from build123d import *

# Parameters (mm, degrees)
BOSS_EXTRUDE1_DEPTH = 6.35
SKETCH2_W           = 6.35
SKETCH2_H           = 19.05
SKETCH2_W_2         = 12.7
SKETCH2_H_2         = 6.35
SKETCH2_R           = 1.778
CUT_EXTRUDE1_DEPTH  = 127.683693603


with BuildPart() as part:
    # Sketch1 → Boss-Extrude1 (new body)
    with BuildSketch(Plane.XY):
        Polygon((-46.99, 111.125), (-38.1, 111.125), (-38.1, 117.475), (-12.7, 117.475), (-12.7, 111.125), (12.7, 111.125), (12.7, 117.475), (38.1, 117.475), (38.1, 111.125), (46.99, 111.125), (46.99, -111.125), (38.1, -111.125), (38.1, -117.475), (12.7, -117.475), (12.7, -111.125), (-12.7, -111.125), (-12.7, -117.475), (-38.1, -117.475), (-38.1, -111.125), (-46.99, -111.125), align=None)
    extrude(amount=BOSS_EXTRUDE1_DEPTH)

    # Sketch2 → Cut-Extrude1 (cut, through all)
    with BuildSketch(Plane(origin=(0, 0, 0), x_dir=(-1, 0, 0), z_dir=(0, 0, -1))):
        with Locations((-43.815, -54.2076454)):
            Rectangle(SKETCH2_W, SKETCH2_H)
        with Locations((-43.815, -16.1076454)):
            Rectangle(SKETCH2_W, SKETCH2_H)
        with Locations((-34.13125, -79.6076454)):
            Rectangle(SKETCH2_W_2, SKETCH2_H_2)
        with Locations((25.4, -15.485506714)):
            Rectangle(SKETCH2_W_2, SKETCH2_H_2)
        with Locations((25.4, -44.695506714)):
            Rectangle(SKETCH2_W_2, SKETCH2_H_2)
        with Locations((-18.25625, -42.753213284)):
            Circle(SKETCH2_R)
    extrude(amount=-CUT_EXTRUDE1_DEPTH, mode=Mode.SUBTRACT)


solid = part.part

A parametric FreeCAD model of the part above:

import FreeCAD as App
import Part
import Sketcher

V = App.Vector
Q = App.Units.Quantity

doc = App.newDocument("Part")
body = doc.addObject("PartDesign::Body", "Body")

sketch1 = doc.addObject("Sketcher::SketchObject", "Sketch")
body.addObject(sketch1)
sketch1.AttachmentSupport = (doc.XY_Plane, [""])
sketch1.MapMode = "FlatFace"
sketch1.addGeometry(Part.LineSegment(V(-38, 111, 0), V(-47, 111, 0)), False)
sketch1.addGeometry(Part.LineSegment(V(-47, 111, 0), V(-47, -111, 0)), False)
sketch1.addGeometry(Part.LineSegment(V(-47, -111, 0), V(-38, -111, 0)), False)
sketch1.addGeometry(Part.LineSegment(V(-38, -111, 0), V(-38, -117, 0)), False)
sketch1.addGeometry(Part.LineSegment(V(-38, -117, 0), V(-13, -117, 0)), False)
sketch1.addGeometry(Part.LineSegment(V(-13, -117, 0), V(-13, -111, 0)), False)
sketch1.addGeometry(Part.LineSegment(V(-13, -111, 0), V(13, -111, 0)), False)
sketch1.addGeometry(Part.LineSegment(V(13, -111, 0), V(13, -117, 0)), False)
sketch1.addGeometry(Part.LineSegment(V(13, -117, 0), V(38, -117, 0)), False)
sketch1.addGeometry(Part.LineSegment(V(38, -117, 0), V(38, -111, 0)), False)
sketch1.addGeometry(Part.LineSegment(V(38, -111, 0), V(47, -111, 0)), False)
sketch1.addGeometry(Part.LineSegment(V(47, -111, 0), V(47, 111, 0)), False)
sketch1.addGeometry(Part.LineSegment(V(47, 111, 0), V(38, 111, 0)), False)
sketch1.addGeometry(Part.LineSegment(V(38, 111, 0), V(38, 117, 0)), False)
sketch1.addGeometry(Part.LineSegment(V(38, 117, 0), V(13, 117, 0)), False)
sketch1.addGeometry(Part.LineSegment(V(13, 117, 0), V(13, 111, 0)), False)
sketch1.addGeometry(Part.LineSegment(V(13, 111, 0), V(-13, 111, 0)), False)
sketch1.addGeometry(Part.LineSegment(V(-13, 111, 0), V(-13, 117, 0)), False)
sketch1.addGeometry(Part.LineSegment(V(-13, 117, 0), V(-38, 117, 0)), False)
sketch1.addGeometry(Part.LineSegment(V(-38, 117, 0), V(-38, 111, 0)), False)
sketch1.addConstraint(Sketcher.Constraint("Coincident", 0, 2, 1, 1))
sketch1.addConstraint(Sketcher.Constraint("Coincident", 1, 2, 2, 1))
sketch1.addConstraint(Sketcher.Constraint("Coincident", 2, 2, 3, 1))
sketch1.addConstraint(Sketcher.Constraint("Coincident", 3, 2, 4, 1))
sketch1.addConstraint(Sketcher.Constraint("Coincident", 4, 2, 5, 1))
sketch1.addConstraint(Sketcher.Constraint("Coincident", 5, 2, 6, 1))
sketch1.addConstraint(Sketcher.Constraint("Coincident", 6, 2, 7, 1))
sketch1.addConstraint(Sketcher.Constraint("Coincident", 7, 2, 8, 1))
sketch1.addConstraint(Sketcher.Constraint("Coincident", 8, 2, 9, 1))
sketch1.addConstraint(Sketcher.Constraint("Coincident", 9, 2, 10, 1))
sketch1.addConstraint(Sketcher.Constraint("Coincident", 10, 2, 11, 1))
sketch1.addConstraint(Sketcher.Constraint("Coincident", 11, 2, 12, 1))
sketch1.addConstraint(Sketcher.Constraint("Coincident", 12, 2, 13, 1))
sketch1.addConstraint(Sketcher.Constraint("Coincident", 13, 2, 14, 1))
sketch1.addConstraint(Sketcher.Constraint("Coincident", 14, 2, 15, 1))
sketch1.addConstraint(Sketcher.Constraint("Coincident", 15, 2, 16, 1))
sketch1.addConstraint(Sketcher.Constraint("Coincident", 16, 2, 17, 1))
sketch1.addConstraint(Sketcher.Constraint("Coincident", 17, 2, 18, 1))
sketch1.addConstraint(Sketcher.Constraint("Coincident", 18, 2, 19, 1))
sketch1.addConstraint(Sketcher.Constraint("Coincident", 19, 2, 0, 1))
sketch1.addConstraint(Sketcher.Constraint("Horizontal", 0))
sketch1.addConstraint(Sketcher.Constraint("Vertical", 1))
sketch1.addConstraint(Sketcher.Constraint("Horizontal", 2))
sketch1.addConstraint(Sketcher.Constraint("Vertical", 3))
sketch1.addConstraint(Sketcher.Constraint("Horizontal", 4))
sketch1.addConstraint(Sketcher.Constraint("Vertical", 5))
sketch1.addConstraint(Sketcher.Constraint("Horizontal", 6))
sketch1.addConstraint(Sketcher.Constraint("Vertical", 7))
sketch1.addConstraint(Sketcher.Constraint("Horizontal", 8))
sketch1.addConstraint(Sketcher.Constraint("Vertical", 9))
sketch1.addConstraint(Sketcher.Constraint("Horizontal", 10))
sketch1.addConstraint(Sketcher.Constraint("Vertical", 11))
sketch1.addConstraint(Sketcher.Constraint("Horizontal", 12))
sketch1.addConstraint(Sketcher.Constraint("Vertical", 13))
sketch1.addConstraint(Sketcher.Constraint("Horizontal", 14))
sketch1.addConstraint(Sketcher.Constraint("Vertical", 15))
sketch1.addConstraint(Sketcher.Constraint("Horizontal", 16))
sketch1.addConstraint(Sketcher.Constraint("Vertical", 17))
sketch1.addConstraint(Sketcher.Constraint("Horizontal", 18))
sketch1.addConstraint(Sketcher.Constraint("Vertical", 19))
sketch1.addConstraint(Sketcher.Constraint("Symmetric", 0, 2, 10, 2, -1, 1))
sketch1.addConstraint(Sketcher.Constraint("Symmetric", 2, 2, 12, 2, -1, 1))
sketch1.addConstraint(Sketcher.Constraint("Symmetric", 4, 2, 14, 2, -1, 1))
sketch1.addConstraint(Sketcher.Constraint("Symmetric", 6, 2, 16, 2, -1, 1))
sketch1.addConstraint(Sketcher.Constraint("Symmetric", 8, 2, 18, 2, -1, 1))
sketch1.addConstraint(Sketcher.Constraint("Symmetric", 4, 2, 7, 2, -2))
sketch1.addConstraint(Sketcher.Constraint("Symmetric", 2, 2, 9, 2, -2))
sketch1.addConstraint(Sketcher.Constraint("Horizontal", 2, 2, 5, 2))
sketch1.addConstraint(Sketcher.Constraint("Equal", 4, 6))
sketch1.addConstraint(Sketcher.Constraint("DistanceX", 4, 1, 4, 2, Q("1 in")))
sketch1.addConstraint(Sketcher.Constraint("DistanceY", 3, 2, 0, 2, Q("9 in")))
sketch1.addConstraint(Sketcher.Constraint("DistanceX", 0, 2, 0, 1, Q("0.35 in")))
sketch1.addConstraint(Sketcher.Constraint("DistanceY", 1, 2, 1, 1, Q("8.75 in")))
pad1 = doc.addObject("PartDesign::Pad", "Pad")
body.addObject(pad1)
pad1.Profile = sketch1
pad1.Length = Q("0.25 in")

sketch2 = doc.addObject("Sketcher::SketchObject", "Sketch001")
body.addObject(sketch2)
sketch2.AttachmentSupport = (doc.XY_Plane, [""])
sketch2.MapMode = "FlatFace"
sketch2.addGeometry(Part.LineSegment(V(47, -44.7, 0), V(47, -63.7, 0)), False)
sketch2.addGeometry(Part.LineSegment(V(47, -63.7, 0), V(40.6, -63.7, 0)), False)
sketch2.addGeometry(Part.LineSegment(V(40.6, -63.7, 0), V(40.6, -44.7, 0)), False)
sketch2.addGeometry(Part.LineSegment(V(40.6, -44.7, 0), V(47, -44.7, 0)), False)
sketch2.addGeometry(Part.LineSegment(V(47, -6.6, 0), V(47, -25.6, 0)), False)
sketch2.addGeometry(Part.LineSegment(V(47, -25.6, 0), V(40.6, -25.6, 0)), False)
sketch2.addGeometry(Part.LineSegment(V(40.6, -25.6, 0), V(40.6, -6.6, 0)), False)
sketch2.addGeometry(Part.LineSegment(V(40.6, -6.6, 0), V(47, -6.6, 0)), False)
sketch2.addGeometry(Part.LineSegment(V(40.5, -76.4, 0), V(40.5, -82.8, 0)), False)
sketch2.addGeometry(Part.LineSegment(V(40.5, -82.8, 0), V(27.8, -82.8, 0)), False)
sketch2.addGeometry(Part.LineSegment(V(27.8, -82.8, 0), V(27.8, -76.4, 0)), False)
sketch2.addGeometry(Part.LineSegment(V(27.8, -76.4, 0), V(40.5, -76.4, 0)), False)
sketch2.addGeometry(Part.LineSegment(V(-19.1, -12.3, 0), V(-19.1, -18.7, 0)), False)
sketch2.addGeometry(Part.LineSegment(V(-19.1, -18.7, 0), V(-31.8, -18.7, 0)), False)
sketch2.addGeometry(Part.LineSegment(V(-31.8, -18.7, 0), V(-31.8, -12.3, 0)), False)
sketch2.addGeometry(Part.LineSegment(V(-31.8, -12.3, 0), V(-19.1, -12.3, 0)), False)
sketch2.addGeometry(Part.LineSegment(V(-19.1, -41.5, 0), V(-19.1, -47.9, 0)), False)
sketch2.addGeometry(Part.LineSegment(V(-19.1, -47.9, 0), V(-31.8, -47.9, 0)), False)
sketch2.addGeometry(Part.LineSegment(V(-31.8, -47.9, 0), V(-31.8, -41.5, 0)), False)
sketch2.addGeometry(Part.LineSegment(V(-31.8, -41.5, 0), V(-19.1, -41.5, 0)), False)
sketch2.addGeometry(Part.Circle(V(18.3, -42.8, 0), V(0, 0, 1), 1.8), False)
sketch2.addConstraint(Sketcher.Constraint("Coincident", 0, 2, 1, 1))
sketch2.addConstraint(Sketcher.Constraint("Coincident", 1, 2, 2, 1))
sketch2.addConstraint(Sketcher.Constraint("Coincident", 2, 2, 3, 1))
sketch2.addConstraint(Sketcher.Constraint("Coincident", 3, 2, 0, 1))
sketch2.addConstraint(Sketcher.Constraint("Coincident", 4, 2, 5, 1))
sketch2.addConstraint(Sketcher.Constraint("Coincident", 5, 2, 6, 1))
sketch2.addConstraint(Sketcher.Constraint("Coincident", 6, 2, 7, 1))
sketch2.addConstraint(Sketcher.Constraint("Coincident", 7, 2, 4, 1))
sketch2.addConstraint(Sketcher.Constraint("Coincident", 8, 2, 9, 1))
sketch2.addConstraint(Sketcher.Constraint("Coincident", 9, 2, 10, 1))
sketch2.addConstraint(Sketcher.Constraint("Coincident", 10, 2, 11, 1))
sketch2.addConstraint(Sketcher.Constraint("Coincident", 11, 2, 8, 1))
sketch2.addConstraint(Sketcher.Constraint("Coincident", 12, 2, 13, 1))
sketch2.addConstraint(Sketcher.Constraint("Coincident", 13, 2, 14, 1))
sketch2.addConstraint(Sketcher.Constraint("Coincident", 14, 2, 15, 1))
sketch2.addConstraint(Sketcher.Constraint("Coincident", 15, 2, 12, 1))
sketch2.addConstraint(Sketcher.Constraint("Coincident", 16, 2, 17, 1))
sketch2.addConstraint(Sketcher.Constraint("Coincident", 17, 2, 18, 1))
sketch2.addConstraint(Sketcher.Constraint("Coincident", 18, 2, 19, 1))
sketch2.addConstraint(Sketcher.Constraint("Coincident", 19, 2, 16, 1))
sketch2.addConstraint(Sketcher.Constraint("Vertical", 0))
sketch2.addConstraint(Sketcher.Constraint("Horizontal", 1))
sketch2.addConstraint(Sketcher.Constraint("Vertical", 2))
sketch2.addConstraint(Sketcher.Constraint("Horizontal", 3))
sketch2.addConstraint(Sketcher.Constraint("Vertical", 4))
sketch2.addConstraint(Sketcher.Constraint("Horizontal", 5))
sketch2.addConstraint(Sketcher.Constraint("Vertical", 6))
sketch2.addConstraint(Sketcher.Constraint("Horizontal", 7))
sketch2.addConstraint(Sketcher.Constraint("Vertical", 8))
sketch2.addConstraint(Sketcher.Constraint("Horizontal", 9))
sketch2.addConstraint(Sketcher.Constraint("Vertical", 10))
sketch2.addConstraint(Sketcher.Constraint("Horizontal", 11))
sketch2.addConstraint(Sketcher.Constraint("Vertical", 12))
sketch2.addConstraint(Sketcher.Constraint("Horizontal", 13))
sketch2.addConstraint(Sketcher.Constraint("Vertical", 14))
sketch2.addConstraint(Sketcher.Constraint("Horizontal", 15))
sketch2.addConstraint(Sketcher.Constraint("Vertical", 16))
sketch2.addConstraint(Sketcher.Constraint("Horizontal", 17))
sketch2.addConstraint(Sketcher.Constraint("Vertical", 18))
sketch2.addConstraint(Sketcher.Constraint("Horizontal", 19))
sketch2.addConstraint(Sketcher.Constraint("Vertical", 3, 2, 4, 2))
sketch2.addConstraint(Sketcher.Constraint("Vertical", 2, 2, 5, 2))
sketch2.addConstraint(Sketcher.Constraint("Vertical", 15, 2, 16, 2))
sketch2.addConstraint(Sketcher.Constraint("Vertical", 14, 2, 17, 2))
sketch2.addConstraint(Sketcher.Constraint("Equal", 11, 13))
sketch2.addConstraint(Sketcher.Constraint("Equal", 2, 4))
sketch2.addConstraint(Sketcher.Constraint("Equal", 7, 8))
sketch2.addConstraint(Sketcher.Constraint("Equal", 10, 12))
sketch2.addConstraint(Sketcher.Constraint("Equal", 14, 16))
sketch2.addConstraint(Sketcher.Constraint("Diameter", 20, Q("0.14 in")))
sketch2.addConstraint(Sketcher.Constraint("DistanceX", 9, 2, 9, 1, Q("0.5 in")))
sketch2.addConstraint(Sketcher.Constraint("DistanceX", 1, 2, 1, 1, Q("0.25 in")))
sketch2.addConstraint(Sketcher.Constraint("DistanceY", 0, 2, 0, 1, Q("0.75 in")))
sketch2.addConstraint(Sketcher.Constraint("DistanceX", -1, 1, 1, 2, Q("1.6 in")))
sketch2.addConstraint(Sketcher.Constraint("DistanceY", 0, 2, 4, 2, Q("1.5 in")))
sketch2.addConstraint(Sketcher.Constraint("DistanceY", 8, 2, 2, 2, Q("1.5 in")))
sketch2.addConstraint(Sketcher.Constraint("DistanceX", 12, 2, 4, 2, Q("2.6 in")))
sketch2.addConstraint(Sketcher.Constraint("DistanceY", 16, 2, 15, 2, Q("1.4 in")))
sketch2.addConstraint(Sketcher.Constraint("DistanceX", -1, 1, 20, 3, Q("0.71875 in")))
sketch2.addConstraint(Sketcher.Constraint("DistanceX", -1, 1, 8, 2, Q("1.59375 in")))
sketch2.addConstraint(Sketcher.Constraint("DistanceY", 5, 2, 12, 2, Q("6.972139 mm")))
sketch2.addConstraint(Sketcher.Constraint("DistanceY", 20, 3, -1, 1, Q("42.753213 mm")))
sketch2.addConstraint(Sketcher.Constraint("DistanceY", 0, 2, -1, 1, Q("63.732645 mm")))
pocket1 = doc.addObject("PartDesign::Pocket", "Pocket")
body.addObject(pocket1)
pocket1.Profile = sketch2
pocket1.Type = "ThroughAll"
pocket1.Reversed = True

doc.recompute()
